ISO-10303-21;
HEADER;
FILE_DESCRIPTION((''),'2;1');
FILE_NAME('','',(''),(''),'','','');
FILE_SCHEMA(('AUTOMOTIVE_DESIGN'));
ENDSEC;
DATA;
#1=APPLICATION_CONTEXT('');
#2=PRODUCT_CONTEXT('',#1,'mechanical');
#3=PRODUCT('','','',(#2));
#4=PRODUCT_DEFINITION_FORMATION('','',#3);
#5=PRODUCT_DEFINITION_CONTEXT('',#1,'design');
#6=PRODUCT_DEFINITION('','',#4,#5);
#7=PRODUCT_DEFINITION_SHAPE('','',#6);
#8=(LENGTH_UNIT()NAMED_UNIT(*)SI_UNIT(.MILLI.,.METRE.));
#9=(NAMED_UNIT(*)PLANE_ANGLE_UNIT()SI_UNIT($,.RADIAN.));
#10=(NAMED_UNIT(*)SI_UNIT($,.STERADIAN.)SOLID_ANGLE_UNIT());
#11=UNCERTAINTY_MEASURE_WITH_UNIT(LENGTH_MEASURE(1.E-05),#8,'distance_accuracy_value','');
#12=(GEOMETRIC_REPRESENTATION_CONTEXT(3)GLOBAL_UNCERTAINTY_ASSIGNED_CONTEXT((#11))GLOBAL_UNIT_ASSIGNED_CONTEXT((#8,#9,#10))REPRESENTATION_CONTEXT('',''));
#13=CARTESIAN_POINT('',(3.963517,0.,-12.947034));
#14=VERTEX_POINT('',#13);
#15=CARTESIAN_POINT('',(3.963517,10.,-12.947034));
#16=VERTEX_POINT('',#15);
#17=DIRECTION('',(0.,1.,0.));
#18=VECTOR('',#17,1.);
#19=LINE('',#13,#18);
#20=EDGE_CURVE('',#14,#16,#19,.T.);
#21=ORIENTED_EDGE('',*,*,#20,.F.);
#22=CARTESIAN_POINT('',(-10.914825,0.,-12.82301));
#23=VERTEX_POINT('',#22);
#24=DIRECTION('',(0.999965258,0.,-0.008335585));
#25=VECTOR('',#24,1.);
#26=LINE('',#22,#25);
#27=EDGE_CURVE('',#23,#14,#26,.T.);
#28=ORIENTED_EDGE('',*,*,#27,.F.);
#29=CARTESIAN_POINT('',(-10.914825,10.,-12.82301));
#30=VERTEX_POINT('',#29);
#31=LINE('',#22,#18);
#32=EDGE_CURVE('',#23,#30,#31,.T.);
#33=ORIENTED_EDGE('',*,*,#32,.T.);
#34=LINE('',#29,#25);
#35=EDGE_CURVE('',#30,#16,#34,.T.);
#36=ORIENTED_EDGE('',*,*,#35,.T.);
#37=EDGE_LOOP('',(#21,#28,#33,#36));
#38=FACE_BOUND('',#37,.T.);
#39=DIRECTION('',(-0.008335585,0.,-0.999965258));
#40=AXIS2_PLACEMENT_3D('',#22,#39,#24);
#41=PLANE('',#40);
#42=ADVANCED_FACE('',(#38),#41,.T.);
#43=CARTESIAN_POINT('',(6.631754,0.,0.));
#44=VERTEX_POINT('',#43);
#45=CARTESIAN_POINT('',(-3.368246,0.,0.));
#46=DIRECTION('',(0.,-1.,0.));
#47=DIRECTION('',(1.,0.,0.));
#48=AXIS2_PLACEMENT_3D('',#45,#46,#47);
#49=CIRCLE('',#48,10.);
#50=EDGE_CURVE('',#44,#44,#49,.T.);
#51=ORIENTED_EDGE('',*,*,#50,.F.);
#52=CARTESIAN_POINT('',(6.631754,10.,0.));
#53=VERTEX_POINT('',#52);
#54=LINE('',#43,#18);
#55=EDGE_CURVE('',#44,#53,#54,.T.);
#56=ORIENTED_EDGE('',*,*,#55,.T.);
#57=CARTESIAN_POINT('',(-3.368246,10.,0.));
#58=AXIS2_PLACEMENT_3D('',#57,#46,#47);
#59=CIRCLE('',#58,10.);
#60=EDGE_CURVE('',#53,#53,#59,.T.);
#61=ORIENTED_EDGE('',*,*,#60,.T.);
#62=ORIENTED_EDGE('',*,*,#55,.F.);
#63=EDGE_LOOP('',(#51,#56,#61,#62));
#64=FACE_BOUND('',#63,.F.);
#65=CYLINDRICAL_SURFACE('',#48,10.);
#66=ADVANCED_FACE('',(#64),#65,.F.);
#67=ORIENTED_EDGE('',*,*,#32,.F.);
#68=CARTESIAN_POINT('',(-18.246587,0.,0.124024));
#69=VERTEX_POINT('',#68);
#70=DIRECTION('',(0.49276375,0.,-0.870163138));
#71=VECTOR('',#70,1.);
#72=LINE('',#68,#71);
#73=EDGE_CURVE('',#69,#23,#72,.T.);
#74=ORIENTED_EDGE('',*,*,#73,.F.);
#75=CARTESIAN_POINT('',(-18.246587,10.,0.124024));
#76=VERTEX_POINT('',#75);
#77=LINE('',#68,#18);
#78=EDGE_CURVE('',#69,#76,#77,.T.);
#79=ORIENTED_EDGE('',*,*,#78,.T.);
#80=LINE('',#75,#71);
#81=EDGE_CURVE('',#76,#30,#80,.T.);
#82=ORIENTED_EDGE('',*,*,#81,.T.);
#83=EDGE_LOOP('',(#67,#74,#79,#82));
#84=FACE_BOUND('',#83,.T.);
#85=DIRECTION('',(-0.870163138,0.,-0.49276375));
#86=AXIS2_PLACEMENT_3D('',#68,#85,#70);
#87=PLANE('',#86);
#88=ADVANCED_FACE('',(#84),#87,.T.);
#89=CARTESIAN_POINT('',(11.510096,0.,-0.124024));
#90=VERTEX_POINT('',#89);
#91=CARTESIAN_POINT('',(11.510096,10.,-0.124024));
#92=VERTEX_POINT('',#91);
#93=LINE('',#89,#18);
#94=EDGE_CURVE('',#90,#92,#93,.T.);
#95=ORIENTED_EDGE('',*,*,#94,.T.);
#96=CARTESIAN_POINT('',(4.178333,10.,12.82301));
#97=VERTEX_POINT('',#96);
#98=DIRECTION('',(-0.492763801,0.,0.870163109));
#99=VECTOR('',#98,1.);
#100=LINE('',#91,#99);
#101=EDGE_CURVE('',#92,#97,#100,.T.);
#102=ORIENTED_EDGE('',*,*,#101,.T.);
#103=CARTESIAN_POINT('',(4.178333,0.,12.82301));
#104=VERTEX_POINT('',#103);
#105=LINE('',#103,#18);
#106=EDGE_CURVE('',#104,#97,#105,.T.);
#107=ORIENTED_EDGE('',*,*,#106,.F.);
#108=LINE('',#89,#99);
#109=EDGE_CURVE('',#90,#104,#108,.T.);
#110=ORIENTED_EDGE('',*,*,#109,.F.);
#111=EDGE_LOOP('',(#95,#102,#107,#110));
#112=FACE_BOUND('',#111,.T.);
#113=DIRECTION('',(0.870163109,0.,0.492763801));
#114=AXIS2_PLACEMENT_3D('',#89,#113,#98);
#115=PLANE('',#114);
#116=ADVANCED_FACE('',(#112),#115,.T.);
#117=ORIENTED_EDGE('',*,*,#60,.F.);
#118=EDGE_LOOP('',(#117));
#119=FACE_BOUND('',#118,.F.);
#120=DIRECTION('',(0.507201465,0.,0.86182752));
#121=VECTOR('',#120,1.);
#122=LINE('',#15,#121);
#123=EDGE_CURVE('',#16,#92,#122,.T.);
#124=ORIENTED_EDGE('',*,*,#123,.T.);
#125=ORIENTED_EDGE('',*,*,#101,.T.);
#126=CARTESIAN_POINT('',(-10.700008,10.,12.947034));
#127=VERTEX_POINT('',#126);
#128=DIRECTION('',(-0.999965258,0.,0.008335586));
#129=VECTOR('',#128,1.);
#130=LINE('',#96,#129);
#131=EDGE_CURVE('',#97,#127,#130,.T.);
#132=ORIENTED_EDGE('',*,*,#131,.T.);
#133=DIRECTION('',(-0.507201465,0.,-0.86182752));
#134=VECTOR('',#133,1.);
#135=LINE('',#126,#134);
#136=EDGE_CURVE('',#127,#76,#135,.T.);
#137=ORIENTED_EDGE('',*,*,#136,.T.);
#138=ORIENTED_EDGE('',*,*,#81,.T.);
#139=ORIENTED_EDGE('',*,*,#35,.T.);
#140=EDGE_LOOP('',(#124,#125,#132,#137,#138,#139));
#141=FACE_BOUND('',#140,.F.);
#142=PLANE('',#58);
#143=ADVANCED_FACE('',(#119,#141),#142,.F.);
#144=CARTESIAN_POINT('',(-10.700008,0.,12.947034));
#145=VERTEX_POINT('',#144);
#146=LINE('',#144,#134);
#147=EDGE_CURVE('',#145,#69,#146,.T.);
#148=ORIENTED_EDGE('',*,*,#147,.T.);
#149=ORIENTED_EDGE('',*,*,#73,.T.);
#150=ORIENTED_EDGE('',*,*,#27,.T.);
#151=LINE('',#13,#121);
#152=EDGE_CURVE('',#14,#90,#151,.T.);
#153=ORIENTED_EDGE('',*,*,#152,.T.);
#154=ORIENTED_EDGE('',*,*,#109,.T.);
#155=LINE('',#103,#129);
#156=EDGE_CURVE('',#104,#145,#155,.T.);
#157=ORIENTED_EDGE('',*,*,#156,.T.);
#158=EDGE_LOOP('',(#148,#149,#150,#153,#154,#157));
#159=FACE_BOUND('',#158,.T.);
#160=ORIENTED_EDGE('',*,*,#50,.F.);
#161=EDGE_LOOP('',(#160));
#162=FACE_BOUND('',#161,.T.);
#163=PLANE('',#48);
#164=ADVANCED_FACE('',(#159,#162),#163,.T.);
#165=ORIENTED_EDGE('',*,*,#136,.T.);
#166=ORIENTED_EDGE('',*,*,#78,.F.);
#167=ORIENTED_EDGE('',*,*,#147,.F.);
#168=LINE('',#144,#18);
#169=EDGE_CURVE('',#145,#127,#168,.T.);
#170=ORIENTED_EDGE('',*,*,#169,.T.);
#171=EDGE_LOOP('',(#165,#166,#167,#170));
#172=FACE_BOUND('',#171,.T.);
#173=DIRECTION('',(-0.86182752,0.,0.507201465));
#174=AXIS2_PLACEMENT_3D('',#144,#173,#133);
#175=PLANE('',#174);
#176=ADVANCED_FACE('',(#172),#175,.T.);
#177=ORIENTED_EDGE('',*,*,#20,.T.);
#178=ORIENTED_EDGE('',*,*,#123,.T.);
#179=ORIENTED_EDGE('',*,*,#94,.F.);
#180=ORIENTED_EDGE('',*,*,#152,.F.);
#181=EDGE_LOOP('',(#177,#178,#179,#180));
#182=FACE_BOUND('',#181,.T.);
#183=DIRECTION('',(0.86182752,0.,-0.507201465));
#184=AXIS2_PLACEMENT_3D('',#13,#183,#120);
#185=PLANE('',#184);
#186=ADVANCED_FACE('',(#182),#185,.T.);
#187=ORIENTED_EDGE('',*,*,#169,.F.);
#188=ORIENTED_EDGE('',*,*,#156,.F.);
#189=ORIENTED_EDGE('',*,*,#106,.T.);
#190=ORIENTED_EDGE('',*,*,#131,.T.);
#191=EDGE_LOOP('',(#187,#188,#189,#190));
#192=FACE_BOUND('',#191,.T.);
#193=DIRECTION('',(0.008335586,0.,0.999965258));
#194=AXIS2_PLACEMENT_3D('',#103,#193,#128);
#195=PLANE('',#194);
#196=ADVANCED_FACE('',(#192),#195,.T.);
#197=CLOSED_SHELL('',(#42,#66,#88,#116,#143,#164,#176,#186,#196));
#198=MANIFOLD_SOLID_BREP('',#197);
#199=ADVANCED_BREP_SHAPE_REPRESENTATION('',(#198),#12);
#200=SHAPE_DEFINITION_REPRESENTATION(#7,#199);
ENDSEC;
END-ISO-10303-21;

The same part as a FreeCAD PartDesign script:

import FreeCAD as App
import Part
import Sketcher
from FreeCAD import Vector


def add_polygon(sketch, points):
    """Adds a closed chain of lines whose ends are joined by coincident constraints."""
    first, n = sketch.GeometryCount, len(points)
    for a, b in zip(points, points[1:] + points[:1]):
        sketch.addGeometry(Part.LineSegment(App.Vector(*a, 0), App.Vector(*b, 0)), False)
    for i in range(n):
        sketch.addConstraint(Sketcher.Constraint("Coincident", first + i, 2, first + (i + 1) % n, 1))

doc = App.newDocument("Part")
params = doc.addObject("Spreadsheet::Sheet", "Params")
for row, (alias, value) in enumerate([
    ("sketch1_diameter", "20 mm"),
    ("pad1_length", "10 mm"),
], start=1):
    params.set(f"A{row}", alias)
    params.set(f"B{row}", "=" + value)
    params.setAlias(f"B{row}", alias)

body = doc.addObject("PartDesign::Body", "Body")

sketch1 = body.newObject("Sketcher::SketchObject", "Sketch")
sketch1.AttachmentSupport = (doc.getObject("XZ_Plane"), [""])
sketch1.MapMode = "FlatFace"
add_polygon(sketch1, [(-11, -13), (4, -13), (12, 0), (4, 13), (-11, 13), (-18, 0)])
sketch1.addGeometry(Part.Circle(Vector(-3, 0, 0), Vector(0, 0, 1), 10), False)
sketch1.addConstraint(Sketcher.Constraint("PointOnObject", 6, 3, -1))
sketch1.addConstraint(Sketcher.Constraint("Parallel", 0, 3))
sketch1.addConstraint(Sketcher.Constraint("Parallel", 1, 4))
sketch1.addConstraint(Sketcher.Constraint("Parallel", 2, 5))
sketch1.addConstraint(Sketcher.Constraint("Equal", 0, 1))
sketch1.addConstraint(Sketcher.Constraint("Equal", 1, 2))
sketch1.addConstraint(Sketcher.Constraint("Equal", 2, 3))
sketch1.addConstraint(Sketcher.Constraint("Diameter", 6, 20.0))
sketch1.addConstraint(Sketcher.Constraint("Distance", 0, 14.878859))
sketch1.addConstraint(Sketcher.Constraint("DistanceY", -1, 1, 2, 2, 12.82301))
sketch1.addConstraint(Sketcher.Constraint("DistanceY", 5, 2, -1, 1, 12.82301))
sketch1.addConstraint(Sketcher.Constraint("DistanceX", 0, 2, 1, 2, 7.546579))
sketch1.addConstraint(Sketcher.Constraint("DistanceX", 6, 3, 2, 2, 7.546579))
sketch1.addConstraint(Sketcher.Constraint("DistanceY", 1, 2, 3, 2, 13.071058))
sketch1.addConstraint(Sketcher.Constraint("DistanceX", 6, 3, -1, 1, 3.368246))
sketch1.setExpression("Constraints[13]", "Params.sketch1_diameter")
pad1 = body.newObject("PartDesign::Pad", "Pad")
pad1.Profile = sketch1
pad1.setExpression("Length", "Params.pad1_length")
pad1.Reversed = True

doc.recompute()
